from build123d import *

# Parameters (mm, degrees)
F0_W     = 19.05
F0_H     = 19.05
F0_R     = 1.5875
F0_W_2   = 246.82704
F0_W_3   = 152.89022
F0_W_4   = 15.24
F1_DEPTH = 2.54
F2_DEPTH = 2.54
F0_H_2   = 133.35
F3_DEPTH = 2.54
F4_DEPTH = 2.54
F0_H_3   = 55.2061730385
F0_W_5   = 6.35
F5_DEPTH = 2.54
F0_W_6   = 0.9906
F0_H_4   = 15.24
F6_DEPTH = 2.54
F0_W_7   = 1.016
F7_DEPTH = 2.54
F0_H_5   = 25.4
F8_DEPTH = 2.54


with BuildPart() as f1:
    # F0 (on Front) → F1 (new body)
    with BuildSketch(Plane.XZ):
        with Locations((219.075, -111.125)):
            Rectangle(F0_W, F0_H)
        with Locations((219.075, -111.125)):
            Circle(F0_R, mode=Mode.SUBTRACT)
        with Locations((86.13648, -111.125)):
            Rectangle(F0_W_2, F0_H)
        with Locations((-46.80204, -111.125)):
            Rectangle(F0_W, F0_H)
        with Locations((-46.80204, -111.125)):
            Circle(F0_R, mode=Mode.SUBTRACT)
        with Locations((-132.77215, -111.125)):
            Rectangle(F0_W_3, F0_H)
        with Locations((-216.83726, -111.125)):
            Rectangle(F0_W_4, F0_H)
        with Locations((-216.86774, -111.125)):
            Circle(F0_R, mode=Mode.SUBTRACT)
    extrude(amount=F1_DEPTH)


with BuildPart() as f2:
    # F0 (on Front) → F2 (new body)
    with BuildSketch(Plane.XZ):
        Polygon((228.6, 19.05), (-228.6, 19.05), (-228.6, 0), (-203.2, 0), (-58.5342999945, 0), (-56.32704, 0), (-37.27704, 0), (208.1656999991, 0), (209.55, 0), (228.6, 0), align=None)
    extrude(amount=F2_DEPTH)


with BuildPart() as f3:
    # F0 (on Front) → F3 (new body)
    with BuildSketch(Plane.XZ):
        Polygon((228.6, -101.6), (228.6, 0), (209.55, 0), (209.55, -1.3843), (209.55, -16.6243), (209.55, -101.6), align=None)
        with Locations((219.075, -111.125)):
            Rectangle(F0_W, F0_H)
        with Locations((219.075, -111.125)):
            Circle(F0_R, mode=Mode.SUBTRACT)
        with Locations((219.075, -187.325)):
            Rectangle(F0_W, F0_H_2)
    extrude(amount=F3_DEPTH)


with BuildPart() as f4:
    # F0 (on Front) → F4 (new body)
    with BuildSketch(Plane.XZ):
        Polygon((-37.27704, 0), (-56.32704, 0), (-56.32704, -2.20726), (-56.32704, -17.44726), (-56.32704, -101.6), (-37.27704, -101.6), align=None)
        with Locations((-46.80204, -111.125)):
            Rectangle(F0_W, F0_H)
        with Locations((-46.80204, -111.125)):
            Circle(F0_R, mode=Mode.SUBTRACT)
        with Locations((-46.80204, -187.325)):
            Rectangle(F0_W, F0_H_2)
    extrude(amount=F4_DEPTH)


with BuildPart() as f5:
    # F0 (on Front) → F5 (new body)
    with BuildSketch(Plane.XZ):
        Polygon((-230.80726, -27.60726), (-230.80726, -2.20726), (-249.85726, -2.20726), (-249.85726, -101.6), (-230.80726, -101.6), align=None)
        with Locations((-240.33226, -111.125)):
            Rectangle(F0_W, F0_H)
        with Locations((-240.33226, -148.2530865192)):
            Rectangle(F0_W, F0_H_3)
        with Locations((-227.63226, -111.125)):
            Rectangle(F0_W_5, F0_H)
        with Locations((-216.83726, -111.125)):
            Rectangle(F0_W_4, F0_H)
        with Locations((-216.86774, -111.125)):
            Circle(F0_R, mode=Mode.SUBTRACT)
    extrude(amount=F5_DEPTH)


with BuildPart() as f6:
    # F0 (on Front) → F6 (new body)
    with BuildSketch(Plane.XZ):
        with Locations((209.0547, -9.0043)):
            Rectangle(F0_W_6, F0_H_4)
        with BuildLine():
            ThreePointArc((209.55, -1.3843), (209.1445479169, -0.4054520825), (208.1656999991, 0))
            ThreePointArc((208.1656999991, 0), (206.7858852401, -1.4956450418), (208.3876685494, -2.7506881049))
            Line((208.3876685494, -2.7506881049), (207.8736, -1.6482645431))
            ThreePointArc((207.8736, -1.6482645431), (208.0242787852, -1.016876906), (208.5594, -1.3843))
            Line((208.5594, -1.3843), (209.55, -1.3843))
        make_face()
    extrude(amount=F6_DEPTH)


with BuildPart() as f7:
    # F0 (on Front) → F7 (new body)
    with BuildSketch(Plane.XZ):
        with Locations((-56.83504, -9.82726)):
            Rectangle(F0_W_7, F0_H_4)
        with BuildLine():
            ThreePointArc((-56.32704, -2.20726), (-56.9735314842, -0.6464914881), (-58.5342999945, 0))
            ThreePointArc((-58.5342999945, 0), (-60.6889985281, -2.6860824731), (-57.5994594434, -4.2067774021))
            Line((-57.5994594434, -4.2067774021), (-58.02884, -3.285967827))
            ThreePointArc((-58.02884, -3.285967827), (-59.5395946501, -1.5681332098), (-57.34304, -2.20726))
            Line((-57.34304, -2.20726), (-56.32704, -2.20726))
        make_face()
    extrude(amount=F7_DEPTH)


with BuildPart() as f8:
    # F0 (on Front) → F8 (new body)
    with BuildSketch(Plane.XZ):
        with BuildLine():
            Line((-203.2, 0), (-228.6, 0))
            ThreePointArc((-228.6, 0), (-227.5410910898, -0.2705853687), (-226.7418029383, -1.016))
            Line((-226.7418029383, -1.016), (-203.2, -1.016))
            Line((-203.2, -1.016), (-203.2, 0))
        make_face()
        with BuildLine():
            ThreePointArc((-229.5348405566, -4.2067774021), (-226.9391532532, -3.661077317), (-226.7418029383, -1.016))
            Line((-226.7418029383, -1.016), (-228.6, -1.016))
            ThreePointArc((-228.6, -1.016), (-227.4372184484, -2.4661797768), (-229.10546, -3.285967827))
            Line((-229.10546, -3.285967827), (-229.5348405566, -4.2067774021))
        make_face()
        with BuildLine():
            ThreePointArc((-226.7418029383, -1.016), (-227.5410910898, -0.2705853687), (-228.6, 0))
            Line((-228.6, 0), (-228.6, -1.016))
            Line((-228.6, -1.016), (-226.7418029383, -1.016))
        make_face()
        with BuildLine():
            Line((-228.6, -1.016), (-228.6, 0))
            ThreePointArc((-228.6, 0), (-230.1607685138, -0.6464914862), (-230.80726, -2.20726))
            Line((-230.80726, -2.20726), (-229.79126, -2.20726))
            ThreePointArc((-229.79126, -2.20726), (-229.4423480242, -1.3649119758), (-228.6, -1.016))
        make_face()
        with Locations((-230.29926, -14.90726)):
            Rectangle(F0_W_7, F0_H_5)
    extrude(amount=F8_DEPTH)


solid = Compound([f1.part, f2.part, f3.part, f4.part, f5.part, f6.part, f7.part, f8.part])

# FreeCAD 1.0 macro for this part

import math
import FreeCAD as App
import Part
import Sketcher

V = App.Vector
Q = App.Units.Quantity

doc = App.newDocument("Part")
params = doc.addObject("Spreadsheet::Sheet", "Params")
for row, (alias, value) in enumerate([
    ("sketch1_diameter", "0.125 in"),
    ("sketch1_height", "0.75 in"),
    ("pad1_length", "0.1 in"),
    ("sketch2_width", "18 in"),
    ("sketch2_height", "0.75 in"),
    ("pad2_length", "0.1 in"),
    ("sketch3_height", "10 in"),
    ("sketch3_diameter", "0.125 in"),
    ("sketch3_width", "0.75 in"),
    ("pad3_length", "0.1 in"),
    ("sketch4_height", "10 in"),
    ("sketch4_diameter", "0.125 in"),
    ("sketch4_width", "0.75 in"),
    ("pad4_length", "0.1 in"),
    ("sketch5_diameter", "0.125 in"),
    ("sketch5_width", "0.75 in"),
    ("sketch5_width2", "0.85 in"),
    ("pad5_length", "0.1 in"),
    ("sketch6_height", "0.6 in"),
    ("pad6_length", "0.1 in"),
    ("sketch7_height", "0.6 in"),
    ("sketch7_width", "0.04 in"),
    ("pad7_length", "0.1 in"),
    ("sketch8_width", "1 in"),
    ("sketch8_width2", "0.04 in"),
    ("pad8_length", "0.1 in"),
], start=1):
    params.set(f"A{row}", alias)
    params.set(f"B{row}", "=" + value)
    params.setAlias(f"B{row}", alias)

body = doc.addObject("PartDesign::Body", "Body")

# Sketch on XZ plane
sketch1 = body.newObject("Sketcher::SketchObject", "Sketch")
sketch1.AttachmentSupport = (doc.getObject("XZ_Plane"), [""])
sketch1.MapMode = "FlatFace"
sketch1.addGeometry([
    Part.LineSegment(V(228.6, -120.7, 0), V(228.6, -101.6, 0)),  # 0
    Part.LineSegment(V(228.6, -101.6, 0), V(-224.5, -101.6, 0)),  # 1
    Part.LineSegment(V(-224.5, -101.6, 0), V(-224.5, -120.7, 0)),  # 2
    Part.LineSegment(V(-224.5, -120.7, 0), V(228.6, -120.7, 0)),  # 3
    Part.Circle(V(-216.9, -111.1, 0), V(0, 0, 1), 1.6),  # 4
    Part.Circle(V(-46.8, -111.1, 0), V(0, 0, 1), 1.6),  # 5
    Part.Circle(V(219.1, -111.1, 0), V(0, 0, 1), 1.6),  # 6
], False)
sketch1.addConstraint([
    Sketcher.Constraint("Coincident", 0, 2, 1, 1),
    Sketcher.Constraint("Coincident", 1, 2, 2, 1),
    Sketcher.Constraint("Coincident", 2, 2, 3, 1),
    Sketcher.Constraint("Coincident", 3, 2, 0, 1),
    Sketcher.Constraint("Vertical", 0),
    Sketcher.Constraint("Horizontal", 1),
    Sketcher.Constraint("Vertical", 2),
    Sketcher.Constraint("Horizontal", 3),
    Sketcher.Constraint("Equal", 4, 5),
    Sketcher.Constraint("Equal", 5, 6),
    Sketcher.Constraint("Horizontal", 4, 3, 5, 3),
    Sketcher.Constraint("Horizontal", 5, 3, 6, 3),
    Sketcher.Constraint("Diameter", 4, Q("0.125 in")),
    Sketcher.Constraint("DistanceX", -1, 1, 0, 2, Q("9 in")),
    Sketcher.Constraint("DistanceY", 0, 2, -1, 1, Q("4 in")),
    Sketcher.Constraint("DistanceY", 0, 1, 0, 2, Q("0.75 in")),
    Sketcher.Constraint("DistanceX", 1, 2, 1, 1, Q("17.8369 in")),
    Sketcher.Constraint("DistanceY", 4, 3, -1, 1, Q("4.375 in")),
    Sketcher.Constraint("DistanceX", -1, 1, 6, 3, Q("8.625 in")),
    Sketcher.Constraint("DistanceX", 4, 3, -1, 1, Q("8.5381 in")),
    Sketcher.Constraint("DistanceX", 5, 3, -1, 1, Q("1.8426 in")),
])
sketch1.setExpression("Constraints[12]", "Params.sketch1_diameter")
sketch1.setExpression("Constraints[15]", "Params.sketch1_height")
pad1 = body.newObject("PartDesign::Pad", "Pad")
pad1.Profile = sketch1
pad1.setExpression("Length", "Params.pad1_length")
body2 = doc.addObject("PartDesign::Body", "Body001")

# Sketch on XZ plane
sketch2 = body2.newObject("Sketcher::SketchObject", "Sketch001")
sketch2.AttachmentSupport = (doc.getObject("XZ_Plane001"), [""])
sketch2.MapMode = "FlatFace"
sketch2.addGeometry([
    Part.LineSegment(V(229, 19, 0), V(-229, 19, 0)),
    Part.LineSegment(V(-229, 19, 0), V(-229, 0, 0)),
    Part.LineSegment(V(-229, 0, 0), V(229, 0, 0)),
    Part.LineSegment(V(229, 0, 0), V(229, 19, 0)),
], False)
sketch2.addConstraint([
    Sketcher.Constraint("Coincident", 0, 2, 1, 1),
    Sketcher.Constraint("Coincident", 1, 2, 2, 1),
    Sketcher.Constraint("Coincident", 2, 2, 3, 1),
    Sketcher.Constraint("Coincident", 3, 2, 0, 1),
    Sketcher.Constraint("Horizontal", 0),
    Sketcher.Constraint("Vertical", 1),
    Sketcher.Constraint("Horizontal", 2),
    Sketcher.Constraint("Vertical", 3),
    Sketcher.Constraint("Symmetric", 1, 2, 2, 2, -1, 1),
    Sketcher.Constraint("DistanceX", 0, 2, 0, 1, Q("18 in")),
    Sketcher.Constraint("DistanceY", 1, 2, 1, 1, Q("0.75 in")),
])
sketch2.setExpression("Constraints[9]", "Params.sketch2_width")
sketch2.setExpression("Constraints[10]", "Params.sketch2_height")
pad2 = body2.newObject("PartDesign::Pad", "Pad001")
pad2.Profile = sketch2
pad2.setExpression("Length", "Params.pad2_length")
body3 = doc.addObject("PartDesign::Body", "Body002")

# Sketch on XZ plane
sketch3 = body3.newObject("Sketcher::SketchObject", "Sketch002")
sketch3.AttachmentSupport = (doc.getObject("XZ_Plane002"), [""])
sketch3.MapMode = "FlatFace"
sketch3.addGeometry([
    Part.LineSegment(V(228.6, 0, 0), V(209.6, 0, 0)),  # 0
    Part.LineSegment(V(209.6, 0, 0), V(209.6, -254, 0)),  # 1
    Part.LineSegment(V(209.6, -254, 0), V(228.6, -254, 0)),  # 2
    Part.LineSegment(V(228.6, -254, 0), V(228.6, 0, 0)),  # 3
    Part.Circle(V(219.1, -111.1, 0), V(0, 0, 1), 1.6),  # 4
], False)
sketch3.addConstraint([
    Sketcher.Constraint("Coincident", 0, 2, 1, 1),
    Sketcher.Constraint("Coincident", 1, 2, 2, 1),
    Sketcher.Constraint("Coincident", 2, 2, 3, 1),
    Sketcher.Constraint("Coincident", 3, 2, 0, 1),
    Sketcher.Constraint("Horizontal", 0),
    Sketcher.Constraint("Vertical", 1),
    Sketcher.Constraint("Horizontal", 2),
    Sketcher.Constraint("Vertical", 3),
    Sketcher.Constraint("PointOnObject", 0, 2, -1),
    Sketcher.Constraint("DistanceY", 1, 2, 1, 1, Q("10 in")),
    Sketcher.Constraint("Diameter", 4, Q("0.125 in")),
    Sketcher.Constraint("DistanceX", -1, 1, 2, 2, Q("9 in")),
    Sketcher.Constraint("DistanceX", 0, 2, 0, 1, Q("0.75 in")),
    Sketcher.Constraint("DistanceX", -1, 1, 4, 3, Q("8.625 in")),
    Sketcher.Constraint("DistanceY", 4, 3, -1, 1, Q("4.375 in")),
])
sketch3.setExpression("Constraints[9]", "Params.sketch3_height")
sketch3.setExpression("Constraints[10]", "Params.sketch3_diameter")
sketch3.setExpression("Constraints[12]", "Params.sketch3_width")
pad3 = body3.newObject("PartDesign::Pad", "Pad002")
pad3.Profile = sketch3
pad3.setExpression("Length", "Params.pad3_length")
body4 = doc.addObject("PartDesign::Body", "Body003")

# Sketch on XZ plane
sketch4 = body4.newObject("Sketcher::SketchObject", "Sketch003")
sketch4.AttachmentSupport = (doc.getObject("XZ_Plane003"), [""])
sketch4.MapMode = "FlatFace"
sketch4.addGeometry([
    Part.LineSegment(V(-37.3, 0, 0), V(-56.3, 0, 0)),  # 0
    Part.LineSegment(V(-56.3, 0, 0), V(-56.3, -254, 0)),  # 1
    Part.LineSegment(V(-56.3, -254, 0), V(-37.3, -254, 0)),  # 2
    Part.LineSegment(V(-37.3, -254, 0), V(-37.3, 0, 0)),  # 3
    Part.Circle(V(-46.8, -111.1, 0), V(0, 0, 1), 1.6),  # 4
], False)
sketch4.addConstraint([
    Sketcher.Constraint("Coincident", 0, 2, 1, 1),
    Sketcher.Constraint("Coincident", 1, 2, 2, 1),
    Sketcher.Constraint("Coincident", 2, 2, 3, 1),
    Sketcher.Constraint("Coincident", 3, 2, 0, 1),
    Sketcher.Constraint("Horizontal", 0),
    Sketcher.Constraint("Vertical", 1),
    Sketcher.Constraint("Horizontal", 2),
    Sketcher.Constraint("Vertical", 3),
    Sketcher.Constraint("PointOnObject", 0, 2, -1),
    Sketcher.Constraint("DistanceY", 1, 2, 1, 1, Q("10 in")),
    Sketcher.Constraint("Diameter", 4, Q("0.125 in")),
    Sketcher.Constraint("DistanceX", 0, 2, 0, 1, Q("0.75 in")),
    Sketcher.Constraint("DistanceY", 4, 3, -1, 1, Q("4.375 in")),
    Sketcher.Constraint("DistanceX", 0, 2, 4, 3, Q("0.375 in")),
    Sketcher.Constraint("DistanceX", 4, 3, -1, 1, Q("1.8426 in")),
])
sketch4.setExpression("Constraints[9]", "Params.sketch4_height")
sketch4.setExpression("Constraints[10]", "Params.sketch4_diameter")
sketch4.setExpression("Constraints[11]", "Params.sketch4_width")
pad4 = body4.newObject("PartDesign::Pad", "Pad003")
pad4.Profile = sketch4
pad4.setExpression("Length", "Params.pad4_length")
body5 = doc.addObject("PartDesign::Body", "Body004")

# Sketch on XZ plane
sketch5 = body5.newObject("Sketcher::SketchObject", "Sketch004")
sketch5.AttachmentSupport = (doc.getObject("XZ_Plane004"), [""])
sketch5.MapMode = "FlatFace"
sketch5.addGeometry([
    Part.LineSegment(V(-230.8, -2.2, 0), V(-249.9, -2.2, 0)),  # 0
    Part.LineSegment(V(-249.9, -2.2, 0), V(-249.9, -175.9, 0)),  # 1
    Part.LineSegment(V(-249.9, -175.9, 0), V(-230.8, -175.9, 0)),  # 2
    Part.LineSegment(V(-230.8, -175.9, 0), V(-230.8, -120.7, 0)),  # 3
    Part.LineSegment(V(-230.8, -120.7, 0), V(-209.2, -120.7, 0)),  # 4
    Part.LineSegment(V(-209.2, -120.7, 0), V(-209.2, -101.6, 0)),  # 5
    Part.LineSegment(V(-209.2, -101.6, 0), V(-230.8, -101.6, 0)),  # 6
    Part.LineSegment(V(-230.8, -101.6, 0), V(-230.8, -2.2, 0)),  # 7
    Part.Circle(V(-216.9, -111.1, 0), V(0, 0, 1), 1.6),  # 8
], False)
sketch5.addConstraint([
    Sketcher.Constraint("Coincident", 0, 2, 1, 1),
    Sketcher.Constraint("Coincident", 1, 2, 2, 1),
    Sketcher.Constraint("Coincident", 2, 2, 3, 1),
    Sketcher.Constraint("Coincident", 3, 2, 4, 1),
    Sketcher.Constraint("Coincident", 4, 2, 5, 1),
    Sketcher.Constraint("Coincident", 5, 2, 6, 1),
    Sketcher.Constraint("Coincident", 6, 2, 7, 1),
    Sketcher.Constraint("Coincident", 7, 2, 0, 1),
    Sketcher.Constraint("Horizontal", 0),
    Sketcher.Constraint("Vertical", 1),
    Sketcher.Constraint("Horizontal", 2),
    Sketcher.Constraint("Vertical", 3),
    Sketcher.Constraint("Horizontal", 4),
    Sketcher.Constraint("Vertical", 5),
    Sketcher.Constraint("Horizontal", 6),
    Sketcher.Constraint("Vertical", 7),
    Sketcher.Constraint("Vertical", 3, 2, 6, 2),
    Sketcher.Constraint("Equal", 2, 5),
    Sketcher.Constraint("Diameter", 8, Q("0.125 in")),
    Sketcher.Constraint("DistanceY", 5, 2, -1, 1, Q("4 in")),
    Sketcher.Constraint("DistanceX", 0, 2, 0, 1, Q("0.75 in")),
    Sketcher.Constraint("DistanceX", 4, 1, 4, 2, Q("0.85 in")),
    Sketcher.Constraint("DistanceY", 7, 1, 7, 2, Q("3.9131 in")),
    Sketcher.Constraint("DistanceY", 8, 3, -1, 1, Q("4.375 in")),
    Sketcher.Constraint("DistanceX", 8, 3, -1, 1, Q("8.5381 in")),
    Sketcher.Constraint("DistanceX", 0, 2, -1, 1, Q("9.8369 in")),
    Sketcher.Constraint("DistanceY", 1, 2, 1, 1, 173.648913),
])
sketch5.setExpression("Constraints[18]", "Params.sketch5_diameter")
sketch5.setExpression("Constraints[20]", "Params.sketch5_width")
sketch5.setExpression("Constraints[21]", "Params.sketch5_width2")
pad5 = body5.newObject("PartDesign::Pad", "Pad004")
pad5.Profile = sketch5
pad5.setExpression("Length", "Params.pad5_length")
body6 = doc.addObject("PartDesign::Body", "Body005")

# Sketch on XZ plane
sketch6 = body6.newObject("Sketcher::SketchObject", "Sketch005")
sketch6.AttachmentSupport = (doc.getObject("XZ_Plane005"), [""])
sketch6.MapMode = "FlatFace"
sketch6.addGeometry([
    Part.LineSegment(V(208.56, -1.38, 0), V(208.56, -16.62, 0)),  # 0
    Part.LineSegment(V(208.56, -16.62, 0), V(209.55, -16.62, 0)),  # 1
    Part.LineSegment(V(209.55, -16.62, 0), V(209.55, -1.38, 0)),  # 2
    Part.ArcOfCircle(Part.Circle(V(208.17, -1.38, 0), V(0, 0, 1), 1.38), math.radians(0), math.radians(90)),  # 3
    Part.ArcOfCircle(Part.Circle(V(208.17, -1.38, 0), V(0, 0, 1), 1.38), math.radians(90), math.radians(279)),  # 4
    Part.LineSegment(V(208.39, -2.75, 0), V(207.87, -1.65, 0)),  # 5
    Part.ArcOfCircle(Part.Circle(V(208.17, -1.38, 0), V(0, 0, 1), 0.39), math.radians(0), math.radians(222)),  # 6
], False)
sketch6.addConstraint([
    Sketcher.Constraint("Coincident", 0, 2, 1, 1),
    Sketcher.Constraint("Coincident", 1, 2, 2, 1),
    Sketcher.Constraint("Tangent", 2, 2, 3, 1),
    Sketcher.Constraint("Tangent", 3, 2, 4, 1),
    Sketcher.Constraint("Coincident", 4, 2, 5, 1),
    Sketcher.Constraint("Coincident", 5, 2, 6, 2),
    Sketcher.Constraint("Tangent", 6, 1, 0, 1),
    Sketcher.Constraint("Vertical", 0),
    Sketcher.Constraint("Horizontal", 1),
    Sketcher.Constraint("Vertical", 2),
    Sketcher.Constraint("Coincident", 6, 3, 3, 3),
    Sketcher.Constraint("Equal", 3, 4),
    Sketcher.Constraint("PointOnObject", 3, 2, -1),
    Sketcher.Constraint("Vertical", 6, 3, 3, 2),
    Sketcher.Constraint("DistanceY", 0, 2, 0, 1, Q("0.6 in")),
    Sketcher.Constraint("Angle", 5, Q("115 deg")),
    Sketcher.Constraint("Radius", 3, Q("0.0545 in")),
    Sketcher.Constraint("Radius", 6, Q("0.0155 in")),
    Sketcher.Constraint("DistanceX", -1, 1, 1, 2, Q("8.25 in")),
    Sketcher.Constraint("DistanceX", -1, 1, 5, 2, Q("8.184 in")),
])
sketch6.setExpression("Constraints[14]", "Params.sketch6_height")
pad6 = body6.newObject("PartDesign::Pad", "Pad005")
pad6.Profile = sketch6
pad6.setExpression("Length", "Params.pad6_length")
body7 = doc.addObject("PartDesign::Body", "Body006")

# Sketch on XZ plane
sketch7 = body7.newObject("Sketcher::SketchObject", "Sketch006")
sketch7.AttachmentSupport = (doc.getObject("XZ_Plane006"), [""])
sketch7.MapMode = "FlatFace"
sketch7.addGeometry([
    Part.LineSegment(V(-57.3, -2.2, 0), V(-57.3, -17.4, 0)),  # 0
    Part.LineSegment(V(-57.3, -17.4, 0), V(-56.3, -17.4, 0)),  # 1
    Part.LineSegment(V(-56.3, -17.4, 0), V(-56.3, -2.2, 0)),  # 2
    Part.ArcOfCircle(Part.Circle(V(-58.5, -2.2, 0), V(0, 0, 1), 2.2), math.radians(0), math.radians(90)),  # 3
    Part.ArcOfCircle(Part.Circle(V(-58.5, -2.2, 0), V(0, 0, 1), 2.2), math.radians(90), math.radians(295)),  # 4
    Part.LineSegment(V(-57.6, -4.2, 0), V(-58, -3.3, 0)),  # 5
    Part.ArcOfCircle(Part.Circle(V(-58.5, -2.2, 0), V(0, 0, 1), 1.2), math.radians(0), math.radians(295)),  # 6
], False)
sketch7.addConstraint([
    Sketcher.Constraint("Coincident", 0, 2, 1, 1),
    Sketcher.Constraint("Coincident", 1, 2, 2, 1),
    Sketcher.Constraint("Tangent", 2, 2, 3, 1),
    Sketcher.Constraint("Tangent", 3, 2, 4, 1),
    Sketcher.Constraint("Coincident", 4, 2, 5, 1),
    Sketcher.Constraint("Coincident", 5, 2, 6, 2),
    Sketcher.Constraint("Tangent", 6, 1, 0, 1),
    Sketcher.Constraint("Vertical", 0),
    Sketcher.Constraint("Horizontal", 1),
    Sketcher.Constraint("Vertical", 2),
    Sketcher.Constraint("Coincident", 6, 3, 3, 3),
    Sketcher.Constraint("Equal", 3, 4),
    Sketcher.Constraint("PointOnObject", 3, 2, -1),
    Sketcher.Constraint("Vertical", 6, 3, 3, 2),
    Sketcher.Constraint("DistanceY", 0, 2, 0, 1, Q("0.6 in")),
    Sketcher.Constraint("Angle", 5, Q("115 deg")),
    Sketcher.Constraint("DistanceX", 1, 1, 1, 2, Q("0.04 in")),
    Sketcher.Constraint("Radius", 3, Q("0.0869 in")),
    Sketcher.Constraint("DistanceX", 5, 2, 2, 2, Q("0.067 in")),
    Sketcher.Constraint("DistanceX", 3, 3, -1, 1, Q("2.3045 in")),
])
sketch7.setExpression("Constraints[14]", "Params.sketch7_height")
sketch7.setExpression("Constraints[16]", "Params.sketch7_width")
pad7 = body7.newObject("PartDesign::Pad", "Pad006")
pad7.Profile = sketch7
pad7.setExpression("Length", "Params.pad7_length")
body8 = doc.addObject("PartDesign::Body", "Body007")

# Sketch on XZ plane
sketch8 = body8.newObject("Sketcher::SketchObject", "Sketch007")
sketch8.AttachmentSupport = (doc.getObject("XZ_Plane007"), [""])
sketch8.MapMode = "FlatFace"
sketch8.addGeometry([
    Part.LineSegment(V(-203.2, 0, 0), V(-228.6, 0, 0)),  # 0
    Part.ArcOfCircle(Part.Circle(V(-228.6, -2.2, 0), V(0, 0, 1), 2.2), math.radians(90), math.radians(180)),  # 1
    Part.LineSegment(V(-230.8, -2.2, 0), V(-230.8, -27.6, 0)),  # 2
    Part.LineSegment(V(-230.8, -27.6, 0), V(-229.8, -27.6, 0)),  # 3
    Part.LineSegment(V(-229.8, -27.6, 0), V(-229.8, -2.2, 0)),  # 4
    Part.ArcOfCircle(Part.Circle(V(-228.6, -2.2, 0), V(0, 0, 1), 1.2), math.radians(90), math.radians(180)),  # 5
    Part.ArcOfCircle(Part.Circle(V(-228.6, -2.2, 0), V(0, 0, 1), 1.2), math.radians(-115), math.radians(90)),  # 6
    Part.LineSegment(V(-229.1, -3.3, 0), V(-229.5, -4.2, 0)),  # 7
    Part.ArcOfCircle(Part.Circle(V(-228.6, -2.2, 0), V(0, 0, 1), 2.2), math.radians(-115), math.radians(33)),  # 8
    Part.LineSegment(V(-226.7, -1, 0), V(-203.2, -1, 0)),  # 9
    Part.LineSegment(V(-203.2, -1, 0), V(-203.2, 0, 0)),  # 10
], False)
sketch8.addConstraint([
    Sketcher.Constraint("Tangent", 0, 2, 1, 1),
    Sketcher.Constraint("Tangent", 1, 2, 2, 1),
    Sketcher.Constraint("Coincident", 2, 2, 3, 1),
    Sketcher.Constraint("Coincident", 3, 2, 4, 1),
    Sketcher.Constraint("Tangent", 4, 2, 5, 2),
    Sketcher.Constraint("Tangent", 5, 1, 6, 2),
    Sketcher.Constraint("Coincident", 6, 1, 7, 1),
    Sketcher.Constraint("Coincident", 7, 2, 8, 1),
    Sketcher.Constraint("Coincident", 8, 2, 9, 1),
    Sketcher.Constraint("Coincident", 9, 2, 10, 1),
    Sketcher.Constraint("Coincident", 10, 2, 0, 1),
    Sketcher.Constraint("Horizontal", 0),
    Sketcher.Constraint("Vertical", 2),
    Sketcher.Constraint("Horizontal", 3),
    Sketcher.Constraint("Vertical", 4),
    Sketcher.Constraint("Horizontal", 9),
    Sketcher.Constraint("Vertical", 10),
    Sketcher.Constraint("Coincident", 5, 3, 1, 3),
    Sketcher.Constraint("Coincident", 8, 3, 1, 3),
    Sketcher.Constraint("Equal", 5, 6),
    Sketcher.Constraint("Equal", 1, 8),
    Sketcher.Constraint("PointOnObject", 0, 2, -1),
    Sketcher.Constraint("Horizontal", 5, 1, 8, 2),
    Sketcher.Constraint("Vertical", 0, 2, 5, 1),
    Sketcher.Constraint("Equal", 0, 2),
    Sketcher.Constraint("DistanceX", 0, 2, 0, 1, Q("1 in")),
    Sketcher.Constraint("DistanceX", 1, 3, -1, 1, Q("9 in")),
    Sketcher.Constraint("Angle", 7, Q("-115 deg")),
    Sketcher.Constraint("DistanceX", 3, 1, 3, 2, Q("0.04 in")),
    Sketcher.Constraint("Radius", 1, Q("0.0869 in")),
    Sketcher.Constraint("DistanceX", 4, 2, 6, 1, Q("0.027 in")),
])
sketch8.setExpression("Constraints[25]", "Params.sketch8_width")
sketch8.setExpression("Constraints[28]", "Params.sketch8_width2")
pad8 = body8.newObject("PartDesign::Pad", "Pad007")
pad8.Profile = sketch8
pad8.setExpression("Length", "Params.pad8_length")

doc.recompute()
